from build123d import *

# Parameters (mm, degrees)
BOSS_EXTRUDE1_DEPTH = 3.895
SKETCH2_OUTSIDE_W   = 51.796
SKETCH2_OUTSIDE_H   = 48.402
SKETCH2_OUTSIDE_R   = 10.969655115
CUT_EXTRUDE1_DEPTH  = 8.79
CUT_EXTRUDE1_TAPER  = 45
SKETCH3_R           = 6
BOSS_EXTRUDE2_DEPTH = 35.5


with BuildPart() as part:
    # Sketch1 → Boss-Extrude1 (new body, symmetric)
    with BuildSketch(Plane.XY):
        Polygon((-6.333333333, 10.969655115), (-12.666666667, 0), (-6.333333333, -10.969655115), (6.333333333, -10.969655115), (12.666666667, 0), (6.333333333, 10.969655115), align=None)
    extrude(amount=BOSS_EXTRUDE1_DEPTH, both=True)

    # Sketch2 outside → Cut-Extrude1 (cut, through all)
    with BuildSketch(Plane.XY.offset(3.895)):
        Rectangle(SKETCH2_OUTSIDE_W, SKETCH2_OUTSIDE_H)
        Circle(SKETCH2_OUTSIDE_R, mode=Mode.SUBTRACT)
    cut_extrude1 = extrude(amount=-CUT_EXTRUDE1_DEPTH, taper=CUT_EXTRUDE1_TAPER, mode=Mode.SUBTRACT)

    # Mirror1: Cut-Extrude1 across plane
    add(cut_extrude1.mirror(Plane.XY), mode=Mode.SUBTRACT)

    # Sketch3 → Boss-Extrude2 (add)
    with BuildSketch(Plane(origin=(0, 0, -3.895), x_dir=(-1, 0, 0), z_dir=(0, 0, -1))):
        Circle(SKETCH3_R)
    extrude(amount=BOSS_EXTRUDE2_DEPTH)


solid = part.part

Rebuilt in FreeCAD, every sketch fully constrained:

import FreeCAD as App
import Part
import Sketcher
from FreeCAD import Vector
Q = App.Units.Quantity


def add_polygon(sketch, points):
    """Adds a closed chain of lines whose ends are joined by coincident constraints."""
    first, n = sketch.GeometryCount, len(points)
    for a, b in zip(points, points[1:] + points[:1]):
        sketch.addGeometry(Part.LineSegment(App.Vector(*a, 0), App.Vector(*b, 0)), False)
    for i in range(n):
        sketch.addConstraint(Sketcher.Constraint("Coincident", first + i, 2, first + (i + 1) % n, 1))

doc = App.newDocument("Part")
body = doc.addObject("PartDesign::Body", "Body")

# Sketch on XY plane
sketch1 = body.newObject("Sketcher::SketchObject", "Sketch")
sketch1.AttachmentSupport = (doc.getObject("XY_Plane"), [""])
sketch1.MapMode = "FlatFace"
add_polygon(sketch1, [(-6, 11), (-13, 0), (-6, -11), (6, -11), (13, 0), (6, 11)])  # lines 0-5
sketch1.addConstraint([
    Sketcher.Constraint("Horizontal", 2),
    Sketcher.Constraint("Horizontal", 5),
    Sketcher.Constraint("Symmetric", 0, 2, 3, 2, -1, 1),
    Sketcher.Constraint("Symmetric", 1, 2, 4, 2, -1, 1),
    Sketcher.Constraint("PointOnObject", 0, 2, -1),
    Sketcher.Constraint("Parallel", 0, 3),
    Sketcher.Constraint("Vertical", 2, 2, 4, 2),
    Sketcher.Constraint("Angle", 0, Q("-120 deg")),
    Sketcher.Constraint("DistanceX", 0, 2, 2, 2, Q("19 mm")),
    Sketcher.Constraint("DistanceX", 2, 1, 2, 2, Q("12.666667 mm")),
])
pad1 = body.newObject("PartDesign::Pad", "Pad")
pad1.Profile = sketch1
pad1.Length = 7.79
pad1.Midplane = True

# Sketch on XY plane
sketch2 = body.newObject("Sketcher::SketchObject", "Sketch001")
sketch2.AttachmentSupport = (doc.getObject("XY_Plane"), [""])
sketch2.MapMode = "FlatFace"
sketch2.AttachmentOffset = App.Placement(Vector(0, 0, 3.895), App.Rotation())
add_polygon(sketch2, [(-26, 24), (-26, -24), (26, -24), (26, 24)])  # lines 0-3
sketch2.addGeometry(Part.Circle(Vector(0, 0, 0), Vector(0, 0, 1), 11), False)  # 4
sketch2.addConstraint([
    Sketcher.Constraint("Vertical", 0),
    Sketcher.Constraint("Horizontal", 1),
    Sketcher.Constraint("Vertical", 2),
    Sketcher.Constraint("Horizontal", 3),
    Sketcher.Constraint("Coincident", 4, 3, -1, 1),
    Sketcher.Constraint("Symmetric", 0, 2, 2, 2, -1, 1),
    Sketcher.Constraint("Diameter", 4, Q("21.93931 mm")),
    Sketcher.Constraint("DistanceX", 1, 1, 1, 2, Q("51.796 mm")),
    Sketcher.Constraint("DistanceY", 0, 2, 0, 1, Q("48.402 mm")),
])
pocket1 = body.newObject("PartDesign::Pocket", "Pocket")
pocket1.Profile = sketch2
pocket1.Length = 8.79
pocket1.TaperAngle = 45
doc.recompute()

mirrored = body.newObject("PartDesign::Mirrored", "Mirrored")
mirrored.Originals = [pocket1]
mirrored.MirrorPlane = (doc.getObject("XY_Plane"), [""])
body.Tip = mirrored

# Sketch on XY plane
sketch3 = body.newObject("Sketcher::SketchObject", "Sketch002")
sketch3.AttachmentSupport = (doc.getObject("XY_Plane"), [""])
sketch3.MapMode = "FlatFace"
sketch3.AttachmentOffset = App.Placement(Vector(0, 0, -3.895), App.Rotation())
sketch3.addGeometry(Part.Circle(Vector(0, 0, 0), Vector(0, 0, 1), 6), False)
sketch3.addConstraint([
    Sketcher.Constraint("Coincident", 0, 3, -1, 1),
    Sketcher.Constraint("Diameter", 0, Q("12 mm")),
])
pad2 = body.newObject("PartDesign::Pad", "Pad001")
pad2.Profile = sketch3
pad2.Length = 35.5
pad2.Reversed = True

doc.recompute()
